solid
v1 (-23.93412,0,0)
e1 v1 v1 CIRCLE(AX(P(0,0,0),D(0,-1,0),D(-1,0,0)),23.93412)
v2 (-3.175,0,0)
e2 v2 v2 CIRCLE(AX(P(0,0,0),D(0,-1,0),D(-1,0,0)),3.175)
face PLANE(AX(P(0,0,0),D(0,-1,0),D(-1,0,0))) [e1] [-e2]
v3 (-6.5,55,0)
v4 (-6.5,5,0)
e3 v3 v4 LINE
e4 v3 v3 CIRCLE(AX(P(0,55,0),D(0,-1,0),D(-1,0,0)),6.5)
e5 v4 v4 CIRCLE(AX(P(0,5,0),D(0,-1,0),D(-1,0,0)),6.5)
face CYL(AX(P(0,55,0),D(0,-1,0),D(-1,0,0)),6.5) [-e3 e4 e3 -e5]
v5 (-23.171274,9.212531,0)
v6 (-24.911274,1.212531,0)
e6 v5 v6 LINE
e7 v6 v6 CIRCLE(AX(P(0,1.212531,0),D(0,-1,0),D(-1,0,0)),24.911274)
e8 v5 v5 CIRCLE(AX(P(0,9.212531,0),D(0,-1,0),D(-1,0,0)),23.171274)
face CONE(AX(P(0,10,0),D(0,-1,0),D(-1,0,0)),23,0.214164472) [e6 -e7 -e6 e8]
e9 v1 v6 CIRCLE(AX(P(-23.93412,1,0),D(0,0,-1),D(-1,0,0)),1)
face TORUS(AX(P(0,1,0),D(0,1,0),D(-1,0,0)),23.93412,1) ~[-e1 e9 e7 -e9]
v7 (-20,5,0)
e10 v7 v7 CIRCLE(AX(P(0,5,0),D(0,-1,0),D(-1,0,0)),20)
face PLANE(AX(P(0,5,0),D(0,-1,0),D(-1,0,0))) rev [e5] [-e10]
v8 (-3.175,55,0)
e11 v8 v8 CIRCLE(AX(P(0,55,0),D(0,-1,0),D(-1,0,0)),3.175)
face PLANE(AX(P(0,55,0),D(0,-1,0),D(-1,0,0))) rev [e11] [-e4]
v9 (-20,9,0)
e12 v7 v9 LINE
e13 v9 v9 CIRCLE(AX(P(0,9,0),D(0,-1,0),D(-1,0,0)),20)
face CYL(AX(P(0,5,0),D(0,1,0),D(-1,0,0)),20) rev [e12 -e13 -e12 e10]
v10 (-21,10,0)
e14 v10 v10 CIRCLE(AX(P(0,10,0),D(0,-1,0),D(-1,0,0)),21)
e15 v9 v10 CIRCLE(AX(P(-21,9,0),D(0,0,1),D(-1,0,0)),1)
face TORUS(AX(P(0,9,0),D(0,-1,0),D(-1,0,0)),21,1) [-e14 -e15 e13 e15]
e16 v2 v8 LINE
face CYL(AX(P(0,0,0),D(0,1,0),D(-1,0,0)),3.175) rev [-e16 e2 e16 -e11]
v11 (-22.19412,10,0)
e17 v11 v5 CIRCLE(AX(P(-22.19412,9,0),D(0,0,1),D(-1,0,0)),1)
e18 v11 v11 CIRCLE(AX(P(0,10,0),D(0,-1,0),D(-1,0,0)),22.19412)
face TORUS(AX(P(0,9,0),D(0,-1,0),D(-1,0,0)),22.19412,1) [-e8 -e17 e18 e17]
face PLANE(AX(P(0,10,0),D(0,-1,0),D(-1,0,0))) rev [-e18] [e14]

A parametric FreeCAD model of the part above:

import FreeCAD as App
import Part
import Sketcher


def edges_at(feature, points):
    """Names of the edges that pass closest to the given points."""
    edges = feature.Shape.Edges
    near = lambda p: min(range(len(edges)), key=lambda i: edges[i].distToShape(Part.Vertex(*p))[0])
    return sorted({f"Edge{near(p) + 1}" for p in points})

doc = App.newDocument("Part")
body = doc.addObject("PartDesign::Body", "Body")

sketch1 = body.newObject("Sketcher::SketchObject", "Sketch")
sketch1.AttachmentSupport = (doc.getObject("XY_Plane"), [""])
sketch1.MapMode = "FlatFace"
sketch1.addGeometry([
    Part.LineSegment(App.Vector(-25.2, 0, 0), App.Vector(-3.2, 0, 0)),
    Part.LineSegment(App.Vector(-3.2, 0, 0), App.Vector(-3.2, 55, 0)),
    Part.LineSegment(App.Vector(-3.2, 55, 0), App.Vector(-6.5, 55, 0)),
    Part.LineSegment(App.Vector(-6.5, 55, 0), App.Vector(-6.5, 5, 0)),
    Part.LineSegment(App.Vector(-6.5, 5, 0), App.Vector(-20, 5, 0)),
    Part.LineSegment(App.Vector(-20, 5, 0), App.Vector(-20, 10, 0)),
    Part.LineSegment(App.Vector(-20, 10, 0), App.Vector(-23, 10, 0)),
    Part.LineSegment(App.Vector(-23, 10, 0), App.Vector(-25.2, 0, 0)),
], False)
sketch1.addConstraint([
    Sketcher.Constraint("Coincident", 0, 2, 1, 1),
    Sketcher.Constraint("Coincident", 1, 2, 2, 1),
    Sketcher.Constraint("Coincident", 2, 2, 3, 1),
    Sketcher.Constraint("Coincident", 3, 2, 4, 1),
    Sketcher.Constraint("Coincident", 4, 2, 5, 1),
    Sketcher.Constraint("Coincident", 5, 2, 6, 1),
    Sketcher.Constraint("Coincident", 6, 2, 7, 1),
    Sketcher.Constraint("Coincident", 7, 2, 0, 1),
    Sketcher.Constraint("Horizontal", 0),
    Sketcher.Constraint("Vertical", 1),
    Sketcher.Constraint("Horizontal", 2),
    Sketcher.Constraint("Vertical", 3),
    Sketcher.Constraint("Horizontal", 4),
    Sketcher.Constraint("Vertical", 5),
    Sketcher.Constraint("Horizontal", 6),
    Sketcher.Constraint("PointOnObject", 0, 2, -1),
    Sketcher.Constraint("DistanceX", 0, 1, 0, 2, 22.0),
    Sketcher.Constraint("DistanceX", 6, 2, 6, 1, 3.0),
    Sketcher.Constraint("DistanceY", 1, 1, 1, 2, 55.0),
    Sketcher.Constraint("DistanceY", 3, 2, 3, 1, 50.0),
    Sketcher.Constraint("DistanceY", 5, 1, 5, 2, 5.0),
    Sketcher.Constraint("DistanceX", 4, 2, 4, 1, 13.5),
    Sketcher.Constraint("DistanceX", 4, 2, -1, 1, 20.0),
    Sketcher.Constraint("DistanceX", 2, 2, 2, 1, 3.325),
])
revolution = body.newObject("PartDesign::Revolution", "Revolution")
revolution.Profile = sketch1
revolution.ReferenceAxis = (sketch1, ["V_Axis"])
revolution.Angle = 360
doc.recompute()

fillet = body.newObject("PartDesign::Fillet", "Fillet")
fillet.Base = (revolution, edges_at(revolution, [(25.175, 0, 0), (23, 10, 0), (20, 10, 0)]))
fillet.Radius = 1

doc.recompute()
